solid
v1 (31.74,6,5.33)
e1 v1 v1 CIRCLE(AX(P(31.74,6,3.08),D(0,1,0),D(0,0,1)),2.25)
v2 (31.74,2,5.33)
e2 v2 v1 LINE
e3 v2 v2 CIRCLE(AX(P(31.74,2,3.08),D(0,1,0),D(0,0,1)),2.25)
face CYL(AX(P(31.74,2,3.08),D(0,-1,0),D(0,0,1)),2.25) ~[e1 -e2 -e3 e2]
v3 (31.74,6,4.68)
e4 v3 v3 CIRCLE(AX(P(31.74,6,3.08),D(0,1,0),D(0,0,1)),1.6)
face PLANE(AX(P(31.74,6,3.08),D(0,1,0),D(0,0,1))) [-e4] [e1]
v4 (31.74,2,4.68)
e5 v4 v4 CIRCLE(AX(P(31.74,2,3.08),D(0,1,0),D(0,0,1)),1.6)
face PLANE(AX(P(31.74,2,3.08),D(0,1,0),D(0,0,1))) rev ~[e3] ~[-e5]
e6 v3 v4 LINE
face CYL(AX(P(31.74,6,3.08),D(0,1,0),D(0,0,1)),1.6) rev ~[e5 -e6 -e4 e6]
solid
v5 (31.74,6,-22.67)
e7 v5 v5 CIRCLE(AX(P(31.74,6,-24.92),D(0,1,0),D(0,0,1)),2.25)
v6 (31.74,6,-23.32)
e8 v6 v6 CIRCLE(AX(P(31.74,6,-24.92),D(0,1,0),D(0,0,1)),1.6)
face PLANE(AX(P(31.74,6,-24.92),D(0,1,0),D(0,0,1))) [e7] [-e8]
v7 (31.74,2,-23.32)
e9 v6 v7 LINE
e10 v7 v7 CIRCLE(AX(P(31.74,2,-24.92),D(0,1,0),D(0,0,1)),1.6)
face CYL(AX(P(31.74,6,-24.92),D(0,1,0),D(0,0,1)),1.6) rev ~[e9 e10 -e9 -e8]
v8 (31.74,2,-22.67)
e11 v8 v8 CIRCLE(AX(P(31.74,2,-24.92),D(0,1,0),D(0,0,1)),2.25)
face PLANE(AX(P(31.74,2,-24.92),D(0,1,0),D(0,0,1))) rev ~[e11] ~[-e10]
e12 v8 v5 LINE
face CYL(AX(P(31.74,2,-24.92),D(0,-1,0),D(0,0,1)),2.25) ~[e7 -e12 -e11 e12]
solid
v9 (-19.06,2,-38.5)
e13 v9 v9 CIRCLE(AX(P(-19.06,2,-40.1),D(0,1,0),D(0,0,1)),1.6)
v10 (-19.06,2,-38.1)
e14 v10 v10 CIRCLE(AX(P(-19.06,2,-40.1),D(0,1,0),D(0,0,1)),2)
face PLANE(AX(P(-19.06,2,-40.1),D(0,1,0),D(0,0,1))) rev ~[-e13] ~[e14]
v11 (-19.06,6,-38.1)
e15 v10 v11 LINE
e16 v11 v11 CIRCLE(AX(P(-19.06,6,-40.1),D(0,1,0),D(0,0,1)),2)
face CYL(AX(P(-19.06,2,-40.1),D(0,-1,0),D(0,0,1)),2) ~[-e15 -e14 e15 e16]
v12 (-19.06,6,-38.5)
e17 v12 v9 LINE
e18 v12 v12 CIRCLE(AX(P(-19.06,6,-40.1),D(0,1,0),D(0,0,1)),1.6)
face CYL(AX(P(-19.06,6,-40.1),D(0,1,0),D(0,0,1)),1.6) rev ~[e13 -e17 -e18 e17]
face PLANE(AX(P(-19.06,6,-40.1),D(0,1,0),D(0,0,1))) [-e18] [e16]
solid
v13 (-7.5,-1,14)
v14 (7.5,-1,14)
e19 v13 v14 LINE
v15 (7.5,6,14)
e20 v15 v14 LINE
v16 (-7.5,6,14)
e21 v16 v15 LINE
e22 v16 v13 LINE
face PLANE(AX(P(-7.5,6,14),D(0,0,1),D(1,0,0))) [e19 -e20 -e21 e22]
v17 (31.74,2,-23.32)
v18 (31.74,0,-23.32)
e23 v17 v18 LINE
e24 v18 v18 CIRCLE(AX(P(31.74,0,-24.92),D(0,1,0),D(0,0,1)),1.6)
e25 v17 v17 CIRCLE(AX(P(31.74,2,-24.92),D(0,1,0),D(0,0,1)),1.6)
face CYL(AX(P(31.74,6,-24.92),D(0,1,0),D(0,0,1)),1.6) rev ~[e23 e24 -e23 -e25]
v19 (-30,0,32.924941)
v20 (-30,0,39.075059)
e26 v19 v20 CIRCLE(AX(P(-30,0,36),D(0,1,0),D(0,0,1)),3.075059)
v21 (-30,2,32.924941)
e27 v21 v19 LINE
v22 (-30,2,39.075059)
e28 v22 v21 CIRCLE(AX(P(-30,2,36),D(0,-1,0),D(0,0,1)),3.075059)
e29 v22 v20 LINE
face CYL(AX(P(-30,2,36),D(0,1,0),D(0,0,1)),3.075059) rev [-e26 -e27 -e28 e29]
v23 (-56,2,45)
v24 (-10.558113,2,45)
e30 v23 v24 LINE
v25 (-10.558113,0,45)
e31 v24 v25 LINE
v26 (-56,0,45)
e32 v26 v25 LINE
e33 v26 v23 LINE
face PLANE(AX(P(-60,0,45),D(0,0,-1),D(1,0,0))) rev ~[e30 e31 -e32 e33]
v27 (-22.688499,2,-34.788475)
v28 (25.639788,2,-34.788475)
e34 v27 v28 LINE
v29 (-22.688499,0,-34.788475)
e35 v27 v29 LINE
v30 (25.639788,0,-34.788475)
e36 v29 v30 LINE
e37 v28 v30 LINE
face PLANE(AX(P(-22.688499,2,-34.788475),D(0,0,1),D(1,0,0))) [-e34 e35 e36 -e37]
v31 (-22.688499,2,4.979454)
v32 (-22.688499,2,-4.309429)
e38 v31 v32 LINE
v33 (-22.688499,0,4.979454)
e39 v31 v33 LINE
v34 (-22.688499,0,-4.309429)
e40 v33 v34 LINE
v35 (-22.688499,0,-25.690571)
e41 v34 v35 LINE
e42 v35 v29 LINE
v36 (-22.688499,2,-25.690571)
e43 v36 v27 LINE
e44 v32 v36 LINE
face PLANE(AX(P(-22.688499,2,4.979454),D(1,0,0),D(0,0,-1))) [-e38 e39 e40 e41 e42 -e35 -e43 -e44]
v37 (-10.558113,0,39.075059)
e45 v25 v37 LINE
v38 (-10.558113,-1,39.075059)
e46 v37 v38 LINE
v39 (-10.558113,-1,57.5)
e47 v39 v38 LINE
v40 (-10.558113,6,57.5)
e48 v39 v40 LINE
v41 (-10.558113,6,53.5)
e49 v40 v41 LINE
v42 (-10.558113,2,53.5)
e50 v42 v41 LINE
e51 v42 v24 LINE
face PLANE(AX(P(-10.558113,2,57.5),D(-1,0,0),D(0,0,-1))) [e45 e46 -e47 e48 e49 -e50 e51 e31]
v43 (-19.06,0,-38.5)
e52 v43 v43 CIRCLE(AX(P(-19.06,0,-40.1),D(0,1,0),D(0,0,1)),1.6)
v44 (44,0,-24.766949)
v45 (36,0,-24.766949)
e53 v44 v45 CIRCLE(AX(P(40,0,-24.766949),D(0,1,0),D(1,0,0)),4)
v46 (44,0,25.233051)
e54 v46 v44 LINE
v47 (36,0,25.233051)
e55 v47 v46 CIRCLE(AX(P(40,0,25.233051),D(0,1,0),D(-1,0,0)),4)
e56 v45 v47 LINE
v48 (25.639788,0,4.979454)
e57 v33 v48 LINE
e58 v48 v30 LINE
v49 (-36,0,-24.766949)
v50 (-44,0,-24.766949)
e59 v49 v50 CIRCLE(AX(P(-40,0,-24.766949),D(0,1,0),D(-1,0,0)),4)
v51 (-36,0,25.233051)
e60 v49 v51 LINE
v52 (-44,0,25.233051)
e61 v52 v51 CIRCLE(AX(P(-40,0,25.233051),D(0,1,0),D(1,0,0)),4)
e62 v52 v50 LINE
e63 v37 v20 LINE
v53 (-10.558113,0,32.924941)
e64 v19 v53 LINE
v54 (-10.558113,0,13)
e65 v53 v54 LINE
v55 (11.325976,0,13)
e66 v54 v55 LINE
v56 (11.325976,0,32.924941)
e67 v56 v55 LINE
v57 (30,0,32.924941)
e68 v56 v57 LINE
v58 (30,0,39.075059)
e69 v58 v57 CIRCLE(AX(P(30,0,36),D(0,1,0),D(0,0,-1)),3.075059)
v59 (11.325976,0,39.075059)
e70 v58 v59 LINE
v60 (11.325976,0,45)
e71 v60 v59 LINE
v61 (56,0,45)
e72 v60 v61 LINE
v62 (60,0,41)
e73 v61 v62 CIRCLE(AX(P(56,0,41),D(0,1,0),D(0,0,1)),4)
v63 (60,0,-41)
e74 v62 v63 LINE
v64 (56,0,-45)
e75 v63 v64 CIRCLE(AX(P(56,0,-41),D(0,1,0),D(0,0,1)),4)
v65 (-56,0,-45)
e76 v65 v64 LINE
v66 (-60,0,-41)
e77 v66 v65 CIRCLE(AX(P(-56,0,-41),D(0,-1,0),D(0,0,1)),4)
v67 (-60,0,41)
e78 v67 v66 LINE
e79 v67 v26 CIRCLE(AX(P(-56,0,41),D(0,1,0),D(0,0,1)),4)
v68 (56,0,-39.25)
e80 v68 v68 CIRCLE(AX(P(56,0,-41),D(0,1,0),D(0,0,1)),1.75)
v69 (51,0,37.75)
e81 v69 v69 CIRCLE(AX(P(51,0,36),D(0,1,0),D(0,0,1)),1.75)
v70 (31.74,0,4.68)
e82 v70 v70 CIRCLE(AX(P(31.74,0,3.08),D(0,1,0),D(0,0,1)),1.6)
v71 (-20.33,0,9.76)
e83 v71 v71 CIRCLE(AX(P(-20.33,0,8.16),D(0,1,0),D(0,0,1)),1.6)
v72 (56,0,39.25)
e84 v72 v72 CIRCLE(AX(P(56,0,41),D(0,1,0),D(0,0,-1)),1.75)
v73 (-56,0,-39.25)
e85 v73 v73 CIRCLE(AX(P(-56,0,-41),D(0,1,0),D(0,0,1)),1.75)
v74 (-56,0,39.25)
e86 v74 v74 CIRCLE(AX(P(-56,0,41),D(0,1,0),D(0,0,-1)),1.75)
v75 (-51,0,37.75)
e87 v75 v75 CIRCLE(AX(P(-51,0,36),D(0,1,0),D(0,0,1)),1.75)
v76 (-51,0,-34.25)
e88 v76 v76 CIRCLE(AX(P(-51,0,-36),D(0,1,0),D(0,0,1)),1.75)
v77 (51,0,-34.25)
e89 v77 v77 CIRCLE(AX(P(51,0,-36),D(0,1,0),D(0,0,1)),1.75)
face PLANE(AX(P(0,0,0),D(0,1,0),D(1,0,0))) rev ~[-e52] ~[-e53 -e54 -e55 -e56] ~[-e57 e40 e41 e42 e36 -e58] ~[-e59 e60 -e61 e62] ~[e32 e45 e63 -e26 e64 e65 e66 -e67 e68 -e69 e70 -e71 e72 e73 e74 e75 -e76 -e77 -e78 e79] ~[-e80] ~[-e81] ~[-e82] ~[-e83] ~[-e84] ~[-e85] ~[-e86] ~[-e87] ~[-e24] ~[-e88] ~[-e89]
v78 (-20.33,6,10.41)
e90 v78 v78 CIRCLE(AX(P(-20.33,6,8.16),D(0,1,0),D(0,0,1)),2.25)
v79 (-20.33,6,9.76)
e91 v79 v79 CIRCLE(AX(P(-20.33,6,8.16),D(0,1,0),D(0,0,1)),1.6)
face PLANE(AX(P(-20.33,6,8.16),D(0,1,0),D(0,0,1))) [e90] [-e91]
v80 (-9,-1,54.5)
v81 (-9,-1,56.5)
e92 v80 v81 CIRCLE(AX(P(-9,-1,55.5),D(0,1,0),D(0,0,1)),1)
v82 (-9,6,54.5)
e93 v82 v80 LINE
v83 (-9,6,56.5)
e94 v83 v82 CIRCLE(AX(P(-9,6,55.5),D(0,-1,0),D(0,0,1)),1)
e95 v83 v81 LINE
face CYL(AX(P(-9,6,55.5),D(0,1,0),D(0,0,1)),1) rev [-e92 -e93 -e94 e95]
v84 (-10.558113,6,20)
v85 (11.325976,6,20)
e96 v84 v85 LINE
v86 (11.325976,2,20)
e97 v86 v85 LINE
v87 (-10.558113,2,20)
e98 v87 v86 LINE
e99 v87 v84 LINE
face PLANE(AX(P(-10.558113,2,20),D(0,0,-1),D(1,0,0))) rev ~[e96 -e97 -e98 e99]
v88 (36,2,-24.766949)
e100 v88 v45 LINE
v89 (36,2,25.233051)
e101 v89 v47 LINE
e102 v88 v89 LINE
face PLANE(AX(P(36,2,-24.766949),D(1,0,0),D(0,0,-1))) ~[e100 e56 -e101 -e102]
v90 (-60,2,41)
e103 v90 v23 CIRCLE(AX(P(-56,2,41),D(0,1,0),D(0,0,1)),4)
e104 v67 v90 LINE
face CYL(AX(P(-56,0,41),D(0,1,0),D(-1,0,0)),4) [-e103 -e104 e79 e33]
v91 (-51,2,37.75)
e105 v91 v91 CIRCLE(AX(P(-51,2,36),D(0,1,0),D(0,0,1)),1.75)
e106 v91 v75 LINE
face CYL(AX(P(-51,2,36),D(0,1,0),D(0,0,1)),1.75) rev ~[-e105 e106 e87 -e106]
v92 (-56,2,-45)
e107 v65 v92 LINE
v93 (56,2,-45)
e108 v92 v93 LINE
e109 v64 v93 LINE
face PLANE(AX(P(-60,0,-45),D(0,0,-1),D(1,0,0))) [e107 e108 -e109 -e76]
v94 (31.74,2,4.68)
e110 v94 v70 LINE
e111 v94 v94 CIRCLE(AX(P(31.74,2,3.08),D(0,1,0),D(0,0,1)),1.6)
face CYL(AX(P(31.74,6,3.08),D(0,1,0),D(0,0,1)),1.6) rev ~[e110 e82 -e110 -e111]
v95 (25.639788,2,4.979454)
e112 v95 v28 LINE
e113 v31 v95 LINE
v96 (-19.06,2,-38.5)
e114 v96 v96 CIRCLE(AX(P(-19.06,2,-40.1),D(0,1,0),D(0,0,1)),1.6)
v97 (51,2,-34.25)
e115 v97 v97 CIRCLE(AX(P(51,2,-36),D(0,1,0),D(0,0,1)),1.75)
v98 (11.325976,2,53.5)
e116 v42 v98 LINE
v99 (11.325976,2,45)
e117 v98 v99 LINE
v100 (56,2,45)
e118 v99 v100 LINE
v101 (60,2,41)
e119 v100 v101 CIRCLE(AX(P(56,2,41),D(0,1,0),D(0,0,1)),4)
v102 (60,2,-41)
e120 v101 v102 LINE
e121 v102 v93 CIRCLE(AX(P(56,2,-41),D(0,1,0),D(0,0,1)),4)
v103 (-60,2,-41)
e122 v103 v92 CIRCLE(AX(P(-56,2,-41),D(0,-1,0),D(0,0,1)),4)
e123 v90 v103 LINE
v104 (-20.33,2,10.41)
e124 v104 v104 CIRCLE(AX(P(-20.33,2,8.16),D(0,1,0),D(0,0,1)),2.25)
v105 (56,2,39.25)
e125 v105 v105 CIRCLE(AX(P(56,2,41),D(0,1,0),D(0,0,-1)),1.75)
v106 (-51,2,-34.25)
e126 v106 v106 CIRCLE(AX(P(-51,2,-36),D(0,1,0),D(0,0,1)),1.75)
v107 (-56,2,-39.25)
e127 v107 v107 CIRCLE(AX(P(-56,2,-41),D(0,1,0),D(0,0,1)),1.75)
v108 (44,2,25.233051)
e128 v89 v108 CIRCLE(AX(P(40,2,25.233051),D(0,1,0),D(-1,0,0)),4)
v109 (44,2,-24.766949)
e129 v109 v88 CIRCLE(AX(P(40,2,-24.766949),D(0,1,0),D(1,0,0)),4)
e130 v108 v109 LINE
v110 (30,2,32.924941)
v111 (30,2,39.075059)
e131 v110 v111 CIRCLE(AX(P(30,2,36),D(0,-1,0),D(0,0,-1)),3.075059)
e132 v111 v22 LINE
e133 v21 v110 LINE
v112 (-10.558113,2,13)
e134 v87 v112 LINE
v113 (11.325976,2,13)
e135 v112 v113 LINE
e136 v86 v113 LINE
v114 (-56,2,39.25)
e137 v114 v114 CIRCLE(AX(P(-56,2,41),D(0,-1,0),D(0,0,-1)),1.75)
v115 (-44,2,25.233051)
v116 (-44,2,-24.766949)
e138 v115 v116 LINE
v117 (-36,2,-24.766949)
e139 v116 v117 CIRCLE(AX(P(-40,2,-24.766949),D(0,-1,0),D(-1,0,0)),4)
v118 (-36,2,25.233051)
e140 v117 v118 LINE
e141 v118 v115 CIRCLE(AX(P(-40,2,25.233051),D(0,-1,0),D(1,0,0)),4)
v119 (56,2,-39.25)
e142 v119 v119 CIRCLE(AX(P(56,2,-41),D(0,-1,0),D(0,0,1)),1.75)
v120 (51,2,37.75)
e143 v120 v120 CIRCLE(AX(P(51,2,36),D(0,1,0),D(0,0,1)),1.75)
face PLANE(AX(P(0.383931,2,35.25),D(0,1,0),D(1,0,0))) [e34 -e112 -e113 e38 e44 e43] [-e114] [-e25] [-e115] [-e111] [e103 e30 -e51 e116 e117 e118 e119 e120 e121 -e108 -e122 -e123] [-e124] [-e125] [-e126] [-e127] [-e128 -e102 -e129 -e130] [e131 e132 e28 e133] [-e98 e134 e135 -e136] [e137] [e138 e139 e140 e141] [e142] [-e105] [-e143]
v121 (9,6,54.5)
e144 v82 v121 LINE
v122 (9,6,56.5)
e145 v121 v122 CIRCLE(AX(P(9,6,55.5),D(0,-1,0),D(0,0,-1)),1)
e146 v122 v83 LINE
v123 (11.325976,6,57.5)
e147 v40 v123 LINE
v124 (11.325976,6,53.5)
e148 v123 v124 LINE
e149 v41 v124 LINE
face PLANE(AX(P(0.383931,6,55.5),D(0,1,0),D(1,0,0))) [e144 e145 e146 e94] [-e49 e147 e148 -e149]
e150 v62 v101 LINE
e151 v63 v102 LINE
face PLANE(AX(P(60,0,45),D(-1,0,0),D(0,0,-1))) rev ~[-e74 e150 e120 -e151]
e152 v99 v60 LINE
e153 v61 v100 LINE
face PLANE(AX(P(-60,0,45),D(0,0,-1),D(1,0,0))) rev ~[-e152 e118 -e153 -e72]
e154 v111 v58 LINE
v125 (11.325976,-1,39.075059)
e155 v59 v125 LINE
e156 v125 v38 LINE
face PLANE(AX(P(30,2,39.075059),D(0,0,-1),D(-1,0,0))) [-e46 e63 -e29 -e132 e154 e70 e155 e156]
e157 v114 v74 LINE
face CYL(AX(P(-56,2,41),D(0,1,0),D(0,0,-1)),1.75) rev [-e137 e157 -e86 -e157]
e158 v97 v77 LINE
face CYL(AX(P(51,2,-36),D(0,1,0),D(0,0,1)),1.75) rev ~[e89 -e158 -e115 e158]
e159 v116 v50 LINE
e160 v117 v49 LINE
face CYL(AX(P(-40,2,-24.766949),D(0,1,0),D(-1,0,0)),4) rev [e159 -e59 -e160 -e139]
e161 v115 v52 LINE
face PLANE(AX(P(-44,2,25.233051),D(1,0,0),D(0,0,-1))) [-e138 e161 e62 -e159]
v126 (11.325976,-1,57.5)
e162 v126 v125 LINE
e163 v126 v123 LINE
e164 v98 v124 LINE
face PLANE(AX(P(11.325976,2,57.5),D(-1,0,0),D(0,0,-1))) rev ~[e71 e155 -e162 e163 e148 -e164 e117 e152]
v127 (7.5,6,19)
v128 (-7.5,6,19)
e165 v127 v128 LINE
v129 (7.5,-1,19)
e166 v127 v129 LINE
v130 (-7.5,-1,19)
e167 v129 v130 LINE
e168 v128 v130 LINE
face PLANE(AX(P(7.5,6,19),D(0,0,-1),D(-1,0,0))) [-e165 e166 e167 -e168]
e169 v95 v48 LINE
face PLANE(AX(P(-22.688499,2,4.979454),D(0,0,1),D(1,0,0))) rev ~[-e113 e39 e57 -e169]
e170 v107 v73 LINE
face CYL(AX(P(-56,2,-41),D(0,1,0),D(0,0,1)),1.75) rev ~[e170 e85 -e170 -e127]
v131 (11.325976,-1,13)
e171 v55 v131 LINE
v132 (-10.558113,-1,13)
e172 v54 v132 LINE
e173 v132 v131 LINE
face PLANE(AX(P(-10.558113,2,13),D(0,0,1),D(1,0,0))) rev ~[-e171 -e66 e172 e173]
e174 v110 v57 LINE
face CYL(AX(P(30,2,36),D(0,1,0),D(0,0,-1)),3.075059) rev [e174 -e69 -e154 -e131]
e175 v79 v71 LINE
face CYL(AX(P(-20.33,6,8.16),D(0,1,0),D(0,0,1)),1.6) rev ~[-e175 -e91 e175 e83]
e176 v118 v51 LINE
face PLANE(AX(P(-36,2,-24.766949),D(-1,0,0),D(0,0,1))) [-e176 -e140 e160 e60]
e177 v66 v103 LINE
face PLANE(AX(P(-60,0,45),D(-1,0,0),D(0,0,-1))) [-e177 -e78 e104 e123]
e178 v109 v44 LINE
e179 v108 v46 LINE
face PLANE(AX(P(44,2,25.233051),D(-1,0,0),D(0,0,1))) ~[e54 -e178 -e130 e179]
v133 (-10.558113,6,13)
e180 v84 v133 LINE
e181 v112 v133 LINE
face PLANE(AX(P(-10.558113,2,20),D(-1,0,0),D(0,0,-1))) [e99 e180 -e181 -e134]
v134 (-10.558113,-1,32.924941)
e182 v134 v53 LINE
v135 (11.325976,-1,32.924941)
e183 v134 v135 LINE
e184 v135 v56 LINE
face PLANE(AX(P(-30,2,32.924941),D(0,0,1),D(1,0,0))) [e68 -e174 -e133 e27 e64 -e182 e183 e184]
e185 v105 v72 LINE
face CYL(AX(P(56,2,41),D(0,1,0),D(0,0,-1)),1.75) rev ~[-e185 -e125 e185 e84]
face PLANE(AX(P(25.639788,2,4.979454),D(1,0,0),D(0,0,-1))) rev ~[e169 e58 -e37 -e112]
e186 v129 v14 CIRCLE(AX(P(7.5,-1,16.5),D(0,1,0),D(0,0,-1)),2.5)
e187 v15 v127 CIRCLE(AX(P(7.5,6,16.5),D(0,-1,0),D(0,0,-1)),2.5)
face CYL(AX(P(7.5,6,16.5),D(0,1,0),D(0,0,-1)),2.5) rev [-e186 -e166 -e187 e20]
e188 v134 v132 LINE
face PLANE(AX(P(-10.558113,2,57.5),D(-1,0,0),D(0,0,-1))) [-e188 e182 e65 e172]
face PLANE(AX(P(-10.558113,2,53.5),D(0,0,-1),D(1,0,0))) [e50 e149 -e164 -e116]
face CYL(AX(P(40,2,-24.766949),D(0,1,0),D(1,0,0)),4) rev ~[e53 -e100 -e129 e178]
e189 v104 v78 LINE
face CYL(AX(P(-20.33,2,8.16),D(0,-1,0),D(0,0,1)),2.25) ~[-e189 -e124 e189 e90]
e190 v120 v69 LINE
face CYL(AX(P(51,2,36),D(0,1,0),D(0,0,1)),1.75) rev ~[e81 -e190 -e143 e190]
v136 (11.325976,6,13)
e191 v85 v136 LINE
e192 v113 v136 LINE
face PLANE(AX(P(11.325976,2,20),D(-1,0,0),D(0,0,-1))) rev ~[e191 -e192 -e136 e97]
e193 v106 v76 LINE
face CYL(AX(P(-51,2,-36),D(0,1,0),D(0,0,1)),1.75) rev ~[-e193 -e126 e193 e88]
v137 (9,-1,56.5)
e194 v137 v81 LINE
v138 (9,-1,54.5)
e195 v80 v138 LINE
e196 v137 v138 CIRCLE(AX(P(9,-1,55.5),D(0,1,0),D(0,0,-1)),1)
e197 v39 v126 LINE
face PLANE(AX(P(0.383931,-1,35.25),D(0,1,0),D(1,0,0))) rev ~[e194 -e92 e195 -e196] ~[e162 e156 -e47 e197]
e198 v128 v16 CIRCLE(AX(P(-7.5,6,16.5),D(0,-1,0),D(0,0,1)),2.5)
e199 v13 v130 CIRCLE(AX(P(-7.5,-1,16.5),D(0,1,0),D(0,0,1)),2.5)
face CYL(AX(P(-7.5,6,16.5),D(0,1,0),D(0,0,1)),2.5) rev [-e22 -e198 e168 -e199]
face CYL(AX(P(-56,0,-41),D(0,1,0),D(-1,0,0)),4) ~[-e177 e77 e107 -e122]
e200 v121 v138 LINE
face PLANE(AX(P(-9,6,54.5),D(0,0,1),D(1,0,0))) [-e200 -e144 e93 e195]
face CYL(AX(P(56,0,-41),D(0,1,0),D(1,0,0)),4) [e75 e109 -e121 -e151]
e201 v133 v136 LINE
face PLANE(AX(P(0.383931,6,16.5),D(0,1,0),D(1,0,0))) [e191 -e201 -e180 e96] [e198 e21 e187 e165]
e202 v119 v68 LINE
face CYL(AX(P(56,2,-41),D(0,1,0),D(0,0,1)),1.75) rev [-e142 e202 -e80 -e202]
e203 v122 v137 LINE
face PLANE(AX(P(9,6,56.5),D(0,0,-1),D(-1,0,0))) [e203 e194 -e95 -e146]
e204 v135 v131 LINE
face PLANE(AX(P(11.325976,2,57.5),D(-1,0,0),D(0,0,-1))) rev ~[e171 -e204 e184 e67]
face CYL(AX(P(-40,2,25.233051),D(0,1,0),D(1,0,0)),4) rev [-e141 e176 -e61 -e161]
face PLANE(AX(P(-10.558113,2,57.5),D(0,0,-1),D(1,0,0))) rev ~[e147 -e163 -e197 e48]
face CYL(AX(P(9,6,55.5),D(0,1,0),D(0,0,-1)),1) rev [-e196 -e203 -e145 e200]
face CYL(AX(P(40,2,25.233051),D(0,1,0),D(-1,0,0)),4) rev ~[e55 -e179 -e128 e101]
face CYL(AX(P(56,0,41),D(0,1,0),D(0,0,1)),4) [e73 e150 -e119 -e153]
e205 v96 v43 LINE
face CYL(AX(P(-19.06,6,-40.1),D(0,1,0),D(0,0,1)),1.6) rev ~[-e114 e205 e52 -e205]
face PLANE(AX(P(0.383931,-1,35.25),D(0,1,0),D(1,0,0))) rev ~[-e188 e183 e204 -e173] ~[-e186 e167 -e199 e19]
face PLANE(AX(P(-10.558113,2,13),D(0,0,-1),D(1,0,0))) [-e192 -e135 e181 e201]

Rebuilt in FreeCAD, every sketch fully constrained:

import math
import FreeCAD as App
import Part
import Sketcher

V = App.Vector
Q = App.Units.Quantity


def edges_at(feature, points):
    """Names of the edges that pass closest to the given points."""
    edges = feature.Shape.Edges
    near = lambda p: min(range(len(edges)), key=lambda i: edges[i].distToShape(Part.Vertex(*p))[0])
    return sorted({f"Edge{near(p) + 1}" for p in points})

doc = App.newDocument("Part")
body = doc.addObject("PartDesign::Body", "Body")

# Sketch on XZ plane
sketch1 = doc.addObject("Sketcher::SketchObject", "Sketch")
body.addObject(sketch1)
sketch1.AttachmentSupport = (doc.XZ_Plane, [""])
sketch1.MapMode = "FlatFace"
sketch1.addGeometry(Part.LineSegment(V(-60, -45, 0), V(-60, 45, 0)), False)
sketch1.addGeometry(Part.LineSegment(V(-60, 45, 0), V(60, 45, 0)), False)
sketch1.addGeometry(Part.LineSegment(V(60, 45, 0), V(60, -45, 0)), False)
sketch1.addGeometry(Part.LineSegment(V(60, -45, 0), V(-60, -45, 0)), False)
sketch1.addConstraint(Sketcher.Constraint("Coincident", 0, 2, 1, 1))
sketch1.addConstraint(Sketcher.Constraint("Coincident", 1, 2, 2, 1))
sketch1.addConstraint(Sketcher.Constraint("Coincident", 2, 2, 3, 1))
sketch1.addConstraint(Sketcher.Constraint("Coincident", 3, 2, 0, 1))
sketch1.addConstraint(Sketcher.Constraint("Vertical", 0))
sketch1.addConstraint(Sketcher.Constraint("Horizontal", 1))
sketch1.addConstraint(Sketcher.Constraint("Vertical", 2))
sketch1.addConstraint(Sketcher.Constraint("Horizontal", 3))
sketch1.addConstraint(Sketcher.Constraint("Symmetric", 0, 2, 2, 2, -1, 1))
sketch1.addConstraint(Sketcher.Constraint("DistanceX", 1, 1, 1, 2, Q("120 mm")))
sketch1.addConstraint(Sketcher.Constraint("DistanceY", 0, 1, 0, 2, Q("90 mm")))
pad1 = doc.addObject("PartDesign::Pad", "Pad")
body.addObject(pad1)
pad1.Profile = sketch1
pad1.Length = 2
pad1.Reversed = True
doc.recompute()

fillet = doc.addObject("PartDesign::Fillet", "Fillet")
body.addObject(fillet)
fillet.Base = (pad1, edges_at(pad1, [
    (-60, 1, 45),
    (-60, 1, -45),
    (60, 1, -45),
    (60, 1, 45),
]))
fillet.Radius = 4
body2 = doc.addObject("PartDesign::Body", "Body001")

# Sketch on XZ plane
sketch2 = doc.addObject("Sketcher::SketchObject", "Sketch001")
body2.addObject(sketch2)
sketch2.AttachmentSupport = (doc.getObject("XZ_Plane001"), [""])
sketch2.MapMode = "FlatFace"
sketch2.AttachmentOffset = App.Placement(V(0, 0, -2), App.Rotation())
sketch2.addGeometry(Part.Circle(V(31.74, 3.08, 0), V(0, 0, 1), 2.25), False)
sketch2.addConstraint(Sketcher.Constraint("Diameter", 0, Q("4.5 mm")))
sketch2.addConstraint(Sketcher.Constraint("DistanceX", -1, 1, 0, 3, Q("31.74 mm")))
sketch2.addConstraint(Sketcher.Constraint("DistanceY", -1, 1, 0, 3, Q("3.08 mm")))
pad2 = doc.addObject("PartDesign::Pad", "Pad001")
body2.addObject(pad2)
pad2.Profile = sketch2
pad2.Length = 4
pad2.Reversed = True
body3 = doc.addObject("PartDesign::Body", "Body002")

# Sketch on XZ plane
sketch3 = doc.addObject("Sketcher::SketchObject", "Sketch002")
body3.addObject(sketch3)
sketch3.AttachmentSupport = (doc.getObject("XZ_Plane002"), [""])
sketch3.MapMode = "FlatFace"
sketch3.AttachmentOffset = App.Placement(V(0, 0, -2), App.Rotation())
sketch3.addGeometry(Part.Circle(V(-19.06, -40.1, 0), V(0, 0, 1), 2), False)
sketch3.addConstraint(Sketcher.Constraint("Diameter", 0, Q("4 mm")))
sketch3.addConstraint(Sketcher.Constraint("DistanceY", 0, 3, -1, 1, Q("40.1 mm")))
sketch3.addConstraint(Sketcher.Constraint("DistanceX", 0, 3, -1, 1, Q("19.06 mm")))
pad3 = doc.addObject("PartDesign::Pad", "Pad002")
body3.addObject(pad3)
pad3.Profile = sketch3
pad3.Length = 4
pad3.Reversed = True
body4 = doc.addObject("PartDesign::Body", "Body003")

# Sketch on XZ plane
sketch4 = doc.addObject("Sketcher::SketchObject", "Sketch003")
body4.addObject(sketch4)
sketch4.AttachmentSupport = (doc.getObject("XZ_Plane003"), [""])
sketch4.MapMode = "FlatFace"
sketch4.AttachmentOffset = App.Placement(V(0, 0, -2), App.Rotation())
sketch4.addGeometry(Part.Circle(V(31.74, -24.92, 0), V(0, 0, 1), 2.25), False)
sketch4.addConstraint(Sketcher.Constraint("Diameter", 0, Q("4.5 mm")))
sketch4.addConstraint(Sketcher.Constraint("DistanceX", -1, 1, 0, 3, Q("31.74 mm")))
sketch4.addConstraint(Sketcher.Constraint("DistanceY", 0, 3, -1, 1, Q("24.92 mm")))
pad4 = doc.addObject("PartDesign::Pad", "Pad003")
body4.addObject(pad4)
pad4.Profile = sketch4
pad4.Length = 4
pad4.Reversed = True
body5 = doc.addObject("PartDesign::Body", "Body004")
body5.AllowCompound = True

# Sketch on XZ plane
sketch5 = doc.addObject("Sketcher::SketchObject", "Sketch004")
body5.addObject(sketch5)
sketch5.AttachmentSupport = (doc.getObject("XZ_Plane004"), [""])
sketch5.MapMode = "FlatFace"
sketch5.AttachmentOffset = App.Placement(V(0, 0, -6), App.Rotation())
sketch5.addGeometry(Part.Circle(V(-19.06, -40.1, 0), V(0, 0, 1), 1.6), False)
sketch5.addGeometry(Part.Circle(V(31.74, -24.92, 0), V(0, 0, 1), 1.6), False)
sketch5.addGeometry(Part.Circle(V(31.74, 3.08, 0), V(0, 0, 1), 1.6), False)
sketch5.addConstraint(Sketcher.Constraint("Equal", 0, 1))
sketch5.addConstraint(Sketcher.Constraint("Equal", 1, 2))
sketch5.addConstraint(Sketcher.Constraint("Vertical", 1, 3, 2, 3))
sketch5.addConstraint(Sketcher.Constraint("Diameter", 0, Q("3.2 mm")))
sketch5.addConstraint(Sketcher.Constraint("DistanceY", 1, 3, 2, 3, Q("28 mm")))
sketch5.addConstraint(Sketcher.Constraint("DistanceY", 0, 3, -1, 1, Q("40.1 mm")))
sketch5.addConstraint(Sketcher.Constraint("DistanceX", 0, 3, 1, 3, Q("50.8 mm")))
sketch5.addConstraint(Sketcher.Constraint("DistanceX", 0, 3, -1, 1, Q("19.06 mm")))
sketch5.addConstraint(Sketcher.Constraint("DistanceY", 1, 3, -1, 1, Q("24.92 mm")))
pad5 = doc.addObject("PartDesign::Pad", "Pad004")
body5.addObject(pad5)
pad5.Profile = sketch5
pad5.Length = 10
doc.recompute()

body6 = doc.addObject("PartDesign::Body", "Body005")
body6.BaseFeature = body5
boolean = doc.addObject("PartDesign::Boolean", "Boolean")
body.addObject(boolean)
boolean.Type = "Cut"
boolean.addObjects([body6])
doc.recompute()

# Sketch on XZ plane
sketch6 = doc.addObject("Sketcher::SketchObject", "Sketch005")
body.addObject(sketch6)
sketch6.AttachmentSupport = (doc.XZ_Plane, [""])
sketch6.MapMode = "FlatFace"
sketch6.AttachmentOffset = App.Placement(V(0, 0, -2), App.Rotation())
sketch6.addGeometry(Part.LineSegment(V(-22.688499, -25.690571, 0), V(-22.688499, -4.309429, 0)), False)
sketch6.addGeometry(Part.LineSegment(V(-22.688499, -4.309429, 0), V(20.688499, -4.309429, 0)), False)
sketch6.addGeometry(Part.LineSegment(V(20.688499, -4.309429, 0), V(20.688499, -25.690571, 0)), False)
sketch6.addGeometry(Part.LineSegment(V(20.688499, -25.690571, 0), V(-22.688499, -25.690571, 0)), False)
sketch6.addConstraint(Sketcher.Constraint("Coincident", 0, 2, 1, 1))
sketch6.addConstraint(Sketcher.Constraint("Coincident", 1, 2, 2, 1))
sketch6.addConstraint(Sketcher.Constraint("Coincident", 2, 2, 3, 1))
sketch6.addConstraint(Sketcher.Constraint("Coincident", 3, 2, 0, 1))
sketch6.addConstraint(Sketcher.Constraint("Vertical", 0))
sketch6.addConstraint(Sketcher.Constraint("Horizontal", 1))
sketch6.addConstraint(Sketcher.Constraint("Vertical", 2))
sketch6.addConstraint(Sketcher.Constraint("Horizontal", 3))
sketch6.addConstraint(Sketcher.Constraint("DistanceX", 0, 2, -1, 1, Q("22.688499 mm")))
sketch6.addConstraint(Sketcher.Constraint("DistanceX", -1, 1, 1, 2, Q("20.688499 mm")))
sketch6.addConstraint(Sketcher.Constraint("DistanceY", 0, 1, 0, 2, Q("21.381142 mm")))
sketch6.addConstraint(Sketcher.Constraint("DistanceY", 0, 2, -1, 1, Q("4.309429 mm")))
pocket1 = doc.addObject("PartDesign::Pocket", "Pocket")
body.addObject(pocket1)
pocket1.Profile = sketch6
pocket1.Length = 10
pocket1.Reversed = True

# Sketch on XZ plane
sketch7 = doc.addObject("Sketcher::SketchObject", "Sketch006")
body.addObject(sketch7)
sketch7.AttachmentSupport = (doc.XZ_Plane, [""])
sketch7.MapMode = "FlatFace"
sketch7.AttachmentOffset = App.Placement(V(0, 0, -2), App.Rotation())
sketch7.addGeometry(Part.Circle(V(-20.33, 8.16, 0), V(0, 0, 1), 2.25), False)
sketch7.addConstraint(Sketcher.Constraint("Diameter", 0, Q("4.5 mm")))
sketch7.addConstraint(Sketcher.Constraint("DistanceX", 0, 3, -1, 1, Q("20.33 mm")))
sketch7.addConstraint(Sketcher.Constraint("DistanceY", -1, 1, 0, 3, Q("8.16 mm")))
pad6 = doc.addObject("PartDesign::Pad", "Pad005")
body.addObject(pad6)
pad6.Profile = sketch7
pad6.Length = 4
pad6.Reversed = True

# Sketch on XZ plane
sketch8 = doc.addObject("Sketcher::SketchObject", "Sketch007")
body.addObject(sketch8)
sketch8.AttachmentSupport = (doc.XZ_Plane, [""])
sketch8.MapMode = "FlatFace"
sketch8.AttachmentOffset = App.Placement(V(0, 0, -6), App.Rotation())
sketch8.addGeometry(Part.Circle(V(-20.33, 8.16, 0), V(0, 0, 1), 1.6), False)
sketch8.addConstraint(Sketcher.Constraint("Diameter", 0, Q("3.2 mm")))
sketch8.addConstraint(Sketcher.Constraint("DistanceX", 0, 3, -1, 1, Q("20.33 mm")))
sketch8.addConstraint(Sketcher.Constraint("DistanceY", -1, 1, 0, 3, Q("8.16 mm")))
pocket2 = doc.addObject("PartDesign::Pocket", "Pocket001")
body.addObject(pocket2)
pocket2.Profile = sketch8
pocket2.Length = 8
pocket2.Reversed = True

# Sketch on XZ plane
sketch9 = doc.addObject("Sketcher::SketchObject", "Sketch008")
body.addObject(sketch9)
sketch9.AttachmentSupport = (doc.XZ_Plane, [""])
sketch9.MapMode = "FlatFace"
sketch9.AttachmentOffset = App.Placement(V(0, 0, -2), App.Rotation())
sketch9.addGeometry(Part.LineSegment(V(-10.558113, 13, 0), V(-10.558113, 20, 0)), False)
sketch9.addGeometry(Part.LineSegment(V(-10.558113, 20, 0), V(11.325976, 20, 0)), False)
sketch9.addGeometry(Part.LineSegment(V(11.325976, 20, 0), V(11.325976, 13, 0)), False)
sketch9.addGeometry(Part.LineSegment(V(11.325976, 13, 0), V(-10.558113, 13, 0)), False)
sketch9.addConstraint(Sketcher.Constraint("Coincident", 0, 2, 1, 1))
sketch9.addConstraint(Sketcher.Constraint("Coincident", 1, 2, 2, 1))
sketch9.addConstraint(Sketcher.Constraint("Coincident", 2, 2, 3, 1))
sketch9.addConstraint(Sketcher.Constraint("Coincident", 3, 2, 0, 1))
sketch9.addConstraint(Sketcher.Constraint("Vertical", 0))
sketch9.addConstraint(Sketcher.Constraint("Horizontal", 1))
sketch9.addConstraint(Sketcher.Constraint("Vertical", 2))
sketch9.addConstraint(Sketcher.Constraint("Horizontal", 3))
sketch9.addConstraint(Sketcher.Constraint("DistanceY", 0, 1, 0, 2, Q("7 mm")))
sketch9.addConstraint(Sketcher.Constraint("DistanceY", -1, 1, 0, 2, Q("20 mm")))
sketch9.addConstraint(Sketcher.Constraint("DistanceX", 1, 1, 1, 2, Q("21.884088 mm")))
sketch9.addConstraint(Sketcher.Constraint("DistanceX", 0, 2, -1, 1, Q("10.558113 mm")))
pad7 = doc.addObject("PartDesign::Pad", "Pad006")
body.addObject(pad7)
pad7.Profile = sketch9
pad7.Length = 4
pad7.Reversed = True

# Sketch on XZ plane
sketch10 = doc.addObject("Sketcher::SketchObject", "Sketch009")
body.addObject(sketch10)
sketch10.AttachmentSupport = (doc.XZ_Plane, [""])
sketch10.MapMode = "FlatFace"
sketch10.AttachmentOffset = App.Placement(V(0, 0, -2), App.Rotation())
sketch10.addGeometry(Part.LineSegment(V(-10.558113, 13, 0), V(-10.558113, 57.5, 0)), False)
sketch10.addGeometry(Part.LineSegment(V(-10.558113, 57.5, 0), V(11.325976, 57.5, 0)), False)
sketch10.addGeometry(Part.LineSegment(V(11.325976, 57.5, 0), V(11.325976, 13, 0)), False)
sketch10.addGeometry(Part.LineSegment(V(11.325976, 13, 0), V(-10.558113, 13, 0)), False)
sketch10.addConstraint(Sketcher.Constraint("Coincident", 0, 2, 1, 1))
sketch10.addConstraint(Sketcher.Constraint("Coincident", 1, 2, 2, 1))
sketch10.addConstraint(Sketcher.Constraint("Coincident", 2, 2, 3, 1))
sketch10.addConstraint(Sketcher.Constraint("Coincident", 3, 2, 0, 1))
sketch10.addConstraint(Sketcher.Constraint("Vertical", 0))
sketch10.addConstraint(Sketcher.Constraint("Horizontal", 1))
sketch10.addConstraint(Sketcher.Constraint("Vertical", 2))
sketch10.addConstraint(Sketcher.Constraint("Horizontal", 3))
sketch10.addConstraint(Sketcher.Constraint("DistanceY", 0, 1, 0, 2, Q("44.5 mm")))
sketch10.addConstraint(Sketcher.Constraint("DistanceY", -1, 1, 2, 2, Q("13 mm")))
sketch10.addConstraint(Sketcher.Constraint("DistanceX", 1, 1, 1, 2, Q("21.884088 mm")))
sketch10.addConstraint(Sketcher.Constraint("DistanceX", 0, 2, -1, 1, Q("10.558113 mm")))
pad8 = doc.addObject("PartDesign::Pad", "Pad007")
body.addObject(pad8)
pad8.Profile = sketch10
pad8.Length = 3

# Sketch on XZ plane
sketch11 = doc.addObject("Sketcher::SketchObject", "Sketch010")
body.addObject(sketch11)
sketch11.AttachmentSupport = (doc.XZ_Plane, [""])
sketch11.MapMode = "FlatFace"
sketch11.AttachmentOffset = App.Placement(V(0, 0, -2), App.Rotation())
sketch11.addGeometry(Part.LineSegment(V(-10.558113, 53.5, 0), V(-10.558113, 57.5, 0)), False)
sketch11.addGeometry(Part.LineSegment(V(-10.558113, 57.5, 0), V(11.325976, 57.5, 0)), False)
sketch11.addGeometry(Part.LineSegment(V(11.325976, 57.5, 0), V(11.325976, 53.5, 0)), False)
sketch11.addGeometry(Part.LineSegment(V(11.325976, 53.5, 0), V(-10.558113, 53.5, 0)), False)
sketch11.addConstraint(Sketcher.Constraint("Coincident", 0, 2, 1, 1))
sketch11.addConstraint(Sketcher.Constraint("Coincident", 1, 2, 2, 1))
sketch11.addConstraint(Sketcher.Constraint("Coincident", 2, 2, 3, 1))
sketch11.addConstraint(Sketcher.Constraint("Coincident", 3, 2, 0, 1))
sketch11.addConstraint(Sketcher.Constraint("Vertical", 0))
sketch11.addConstraint(Sketcher.Constraint("Horizontal", 1))
sketch11.addConstraint(Sketcher.Constraint("Vertical", 2))
sketch11.addConstraint(Sketcher.Constraint("Horizontal", 3))
sketch11.addConstraint(Sketcher.Constraint("DistanceY", 0, 1, 0, 2, Q("4 mm")))
sketch11.addConstraint(Sketcher.Constraint("DistanceY", -1, 1, 0, 2, Q("57.5 mm")))
sketch11.addConstraint(Sketcher.Constraint("DistanceX", 1, 1, 1, 2, Q("21.884088 mm")))
sketch11.addConstraint(Sketcher.Constraint("DistanceX", 0, 2, -1, 1, Q("10.558113 mm")))
pad9 = doc.addObject("PartDesign::Pad", "Pad008")
body.addObject(pad9)
pad9.Profile = sketch11
pad9.Length = 4
pad9.Reversed = True

# Sketch on XZ plane
sketch12 = doc.addObject("Sketcher::SketchObject", "Sketch011")
body.addObject(sketch12)
sketch12.AttachmentSupport = (doc.XZ_Plane, [""])
sketch12.MapMode = "FlatFace"
sketch12.AttachmentOffset = App.Placement(V(0, 0, -6), App.Rotation())
sketch12.addGeometry(Part.LineSegment(V(7.5, 14, 0), V(-7.5, 14, 0)), False)
sketch12.addGeometry(Part.ArcOfCircle(Part.Circle(V(-7.5, 16.5, 0), V(0, 0, 1), 2.5), math.radians(90), math.radians(270)), False)
sketch12.addGeometry(Part.LineSegment(V(-7.5, 19, 0), V(7.5, 19, 0)), False)
sketch12.addGeometry(Part.ArcOfCircle(Part.Circle(V(7.5, 16.5, 0), V(0, 0, 1), 2.5), math.radians(-90), math.radians(90)), False)
sketch12.addConstraint(Sketcher.Constraint("Tangent", 0, 2, 1, 2))
sketch12.addConstraint(Sketcher.Constraint("Tangent", 1, 1, 2, 1))
sketch12.addConstraint(Sketcher.Constraint("Tangent", 2, 2, 3, 2))
sketch12.addConstraint(Sketcher.Constraint("Tangent", 3, 1, 0, 1))
sketch12.addConstraint(Sketcher.Constraint("Horizontal", 0))
sketch12.addConstraint(Sketcher.Constraint("Horizontal", 2))
sketch12.addConstraint(Sketcher.Constraint("Radius", 1, Q("2.5 mm")))
sketch12.addConstraint(Sketcher.Constraint("DistanceX", 0, 2, 0, 1, Q("15 mm")))
sketch12.addConstraint(Sketcher.Constraint("DistanceY", -1, 1, 0, 2, Q("14 mm")))
sketch12.addConstraint(Sketcher.Constraint("DistanceX", 1, 3, -1, 1, Q("7.5 mm")))
pocket3 = doc.addObject("PartDesign::Pocket", "Pocket002")
body.addObject(pocket3)
pocket3.Profile = sketch12
pocket3.Length = 11
pocket3.Reversed = True

# Sketch on XZ plane
sketch13 = doc.addObject("Sketcher::SketchObject", "Sketch012")
body.addObject(sketch13)
sketch13.AttachmentSupport = (doc.XZ_Plane, [""])
sketch13.MapMode = "FlatFace"
sketch13.AttachmentOffset = App.Placement(V(0, 0, -6), App.Rotation())
sketch13.addGeometry(Part.LineSegment(V(9, 54.5, 0), V(-9, 54.5, 0)), False)
sketch13.addGeometry(Part.ArcOfCircle(Part.Circle(V(-9, 55.5, 0), V(0, 0, 1), 1), math.radians(90), math.radians(270)), False)
sketch13.addGeometry(Part.LineSegment(V(-9, 56.5, 0), V(9, 56.5, 0)), False)
sketch13.addGeometry(Part.ArcOfCircle(Part.Circle(V(9, 55.5, 0), V(0, 0, 1), 1), math.radians(-90), math.radians(90)), False)
sketch13.addConstraint(Sketcher.Constraint("Tangent", 0, 2, 1, 2))
sketch13.addConstraint(Sketcher.Constraint("Tangent", 1, 1, 2, 1))
sketch13.addConstraint(Sketcher.Constraint("Tangent", 2, 2, 3, 2))
sketch13.addConstraint(Sketcher.Constraint("Tangent", 3, 1, 0, 1))
sketch13.addConstraint(Sketcher.Constraint("Horizontal", 0))
sketch13.addConstraint(Sketcher.Constraint("Horizontal", 2))
sketch13.addConstraint(Sketcher.Constraint("Radius", 1, Q("1 mm")))
sketch13.addConstraint(Sketcher.Constraint("DistanceX", 0, 2, 0, 1, Q("18 mm")))
sketch13.addConstraint(Sketcher.Constraint("DistanceX", 1, 3, -1, 1, Q("9 mm")))
sketch13.addConstraint(Sketcher.Constraint("DistanceY", -1, 1, 1, 3, Q("55.5 mm")))
pocket4 = doc.addObject("PartDesign::Pocket", "Pocket003")
body.addObject(pocket4)
pocket4.Profile = sketch13
pocket4.Length = 11
pocket4.Reversed = True

# Sketch on XZ plane
sketch14 = doc.addObject("Sketcher::SketchObject", "Sketch013")
body.addObject(sketch14)
sketch14.AttachmentSupport = (doc.XZ_Plane, [""])
sketch14.MapMode = "FlatFace"
sketch14.AttachmentOffset = App.Placement(V(0, 0, -2), App.Rotation())
sketch14.addGeometry(Part.Circle(V(-51, -36, 0), V(0, 0, 1), 1.75), False)
sketch14.addGeometry(Part.Circle(V(51, -36, 0), V(0, 0, 1), 1.75), False)
sketch14.addGeometry(Part.Circle(V(51, 36, 0), V(0, 0, 1), 1.75), False)
sketch14.addGeometry(Part.Circle(V(-51, 36, 0), V(0, 0, 1), 1.75), False)
sketch14.addConstraint(Sketcher.Constraint("Equal", 0, 1))
sketch14.addConstraint(Sketcher.Constraint("Equal", 1, 2))
sketch14.addConstraint(Sketcher.Constraint("Equal", 2, 3))
sketch14.addConstraint(Sketcher.Constraint("Symmetric", 0, 3, 2, 3, -1, 1))
sketch14.addConstraint(Sketcher.Constraint("Symmetric", 1, 3, 3, 3, -1, 1))
sketch14.addConstraint(Sketcher.Constraint("Symmetric", 0, 3, 1, 3, -2))
sketch14.addConstraint(Sketcher.Constraint("Diameter", 0, Q("3.5 mm")))
sketch14.addConstraint(Sketcher.Constraint("DistanceX", 0, 3, -1, 1, Q("51 mm")))
sketch14.addConstraint(Sketcher.Constraint("DistanceY", 0, 3, -1, 1, Q("36 mm")))
pocket5 = doc.addObject("PartDesign::Pocket", "Pocket004")
body.addObject(pocket5)
pocket5.Profile = sketch14
pocket5.Length = 3
pocket5.Reversed = True

# Sketch on XZ plane
sketch15 = doc.addObject("Sketcher::SketchObject", "Sketch014")
body.addObject(sketch15)
sketch15.AttachmentSupport = (doc.XZ_Plane, [""])
sketch15.MapMode = "FlatFace"
sketch15.AttachmentOffset = App.Placement(V(0, 0, -2), App.Rotation())
sketch15.addGeometry(Part.Circle(V(-56, -41, 0), V(0, 0, 1), 1.75), False)
sketch15.addConstraint(Sketcher.Constraint("Diameter", 0, Q("3.5 mm")))
sketch15.addConstraint(Sketcher.Constraint("DistanceX", 0, 3, -1, 1, Q("56 mm")))
sketch15.addConstraint(Sketcher.Constraint("DistanceY", 0, 3, -1, 1, Q("41 mm")))
pocket6 = doc.addObject("PartDesign::Pocket", "Pocket005")
body.addObject(pocket6)
pocket6.Profile = sketch15
pocket6.Length = 10
pocket6.Reversed = True
doc.recompute()

mirrored = doc.addObject("PartDesign::Mirrored", "Mirrored")
body.addObject(mirrored)
mirrored.Originals = [pocket6]
mirrored.MirrorPlane = (doc.YZ_Plane, [""])
body.Tip = mirrored
doc.recompute()

mirrored2 = doc.addObject("PartDesign::Mirrored", "Mirrored001")
body.addObject(mirrored2)
mirrored2.Originals = [pocket6]
mirrored2.MirrorPlane = (doc.XY_Plane, [""])
body.Tip = mirrored2

# Sketch on XZ plane
sketch16 = doc.addObject("Sketcher::SketchObject", "Sketch015")
body.addObject(sketch16)
sketch16.AttachmentSupport = (doc.XZ_Plane, [""])
sketch16.MapMode = "FlatFace"
sketch16.AttachmentOffset = App.Placement(V(0, 0, -2), App.Rotation())
sketch16.addGeometry(Part.Circle(V(56, 41, 0), V(0, 0, 1), 1.75), False)
sketch16.addConstraint(Sketcher.Constraint("Diameter", 0, Q("3.5 mm")))
sketch16.addConstraint(Sketcher.Constraint("DistanceX", -1, 1, 0, 3, Q("56 mm")))
sketch16.addConstraint(Sketcher.Constraint("DistanceY", -1, 1, 0, 3, Q("41 mm")))
pocket7 = doc.addObject("PartDesign::Pocket", "Pocket006")
body.addObject(pocket7)
pocket7.Profile = sketch16
pocket7.Length = 10
pocket7.Reversed = True

# Sketch on XZ plane
sketch17 = doc.addObject("Sketcher::SketchObject", "Sketch016")
body.addObject(sketch17)
sketch17.AttachmentSupport = (doc.XZ_Plane, [""])
sketch17.MapMode = "FlatFace"
sketch17.AttachmentOffset = App.Placement(V(0, 0, -2), App.Rotation())
sketch17.addGeometry(Part.LineSegment(V(-44, -24.766949, 0), V(-44, 25.233051, 0)), False)
sketch17.addGeometry(Part.ArcOfCircle(Part.Circle(V(-40, 25.233051, 0), V(0, 0, 1), 4), math.radians(0), math.radians(180)), False)
sketch17.addGeometry(Part.LineSegment(V(-36, 25.233051, 0), V(-36, -24.766949, 0)), False)
sketch17.addGeometry(Part.ArcOfCircle(Part.Circle(V(-40, -24.766949, 0), V(0, 0, 1), 4), math.radians(180), math.radians(360)), False)
sketch17.addConstraint(Sketcher.Constraint("Tangent", 0, 2, 1, 2))
sketch17.addConstraint(Sketcher.Constraint("Tangent", 1, 1, 2, 1))
sketch17.addConstraint(Sketcher.Constraint("Tangent", 2, 2, 3, 2))
sketch17.addConstraint(Sketcher.Constraint("Tangent", 3, 1, 0, 1))
sketch17.addConstraint(Sketcher.Constraint("Vertical", 0))
sketch17.addConstraint(Sketcher.Constraint("Vertical", 2))
sketch17.addConstraint(Sketcher.Constraint("Radius", 1, Q("4 mm")))
sketch17.addConstraint(Sketcher.Constraint("DistanceY", 0, 1, 0, 2, Q("50 mm")))
sketch17.addConstraint(Sketcher.Constraint("DistanceX", 1, 3, -1, 1, Q("40 mm")))
sketch17.addConstraint(Sketcher.Constraint("DistanceY", -1, 1, 1, 3, Q("25.233051 mm")))
pocket8 = doc.addObject("PartDesign::Pocket", "Pocket007")
body.addObject(pocket8)
pocket8.Profile = sketch17
pocket8.Length = 10
pocket8.Reversed = True
doc.recompute()

mirrored3 = doc.addObject("PartDesign::Mirrored", "Mirrored002")
body.addObject(mirrored3)
mirrored3.Originals = [pocket8]
mirrored3.MirrorPlane = (doc.YZ_Plane, [""])
body.Tip = mirrored3

# Sketch on XZ plane
sketch18 = doc.addObject("Sketcher::SketchObject", "Sketch017")
body.addObject(sketch18)
sketch18.AttachmentSupport = (doc.XZ_Plane, [""])
sketch18.MapMode = "FlatFace"
sketch18.AttachmentOffset = App.Placement(V(0, 0, -2), App.Rotation())
sketch18.addGeometry(Part.LineSegment(V(30, 32.924941, 0), V(-30, 32.924941, 0)), False)
sketch18.addGeometry(Part.ArcOfCircle(Part.Circle(V(-30, 36, 0), V(0, 0, 1), 3.075059), math.radians(90), math.radians(270)), False)
sketch18.addGeometry(Part.LineSegment(V(-30, 39.075059, 0), V(30, 39.075059, 0)), False)
sketch18.addGeometry(Part.ArcOfCircle(Part.Circle(V(30, 36, 0), V(0, 0, 1), 3.075059), math.radians(-90), math.radians(90)), False)
sketch18.addConstraint(Sketcher.Constraint("Tangent", 0, 2, 1, 2))
sketch18.addConstraint(Sketcher.Constraint("Tangent", 1, 1, 2, 1))
sketch18.addConstraint(Sketcher.Constraint("Tangent", 2, 2, 3, 2))
sketch18.addConstraint(Sketcher.Constraint("Tangent", 3, 1, 0, 1))
sketch18.addConstraint(Sketcher.Constraint("Horizontal", 0))
sketch18.addConstraint(Sketcher.Constraint("Horizontal", 2))
sketch18.addConstraint(Sketcher.Constraint("DistanceX", 0, 2, 0, 1, Q("60 mm")))
sketch18.addConstraint(Sketcher.Constraint("DistanceX", 1, 3, -1, 1, Q("30 mm")))
sketch18.addConstraint(Sketcher.Constraint("DistanceY", -1, 1, 1, 3, Q("36 mm")))
sketch18.addConstraint(Sketcher.Constraint("Radius", 1, Q("3.075059 mm")))
pocket9 = doc.addObject("PartDesign::Pocket", "Pocket008")
body.addObject(pocket9)
pocket9.Profile = sketch18
pocket9.Length = 10
pocket9.Reversed = True

# Sketch on XZ plane
sketch19 = doc.addObject("Sketcher::SketchObject", "Sketch018")
body.addObject(sketch19)
sketch19.AttachmentSupport = (doc.XZ_Plane, [""])
sketch19.MapMode = "FlatFace"
sketch19.AttachmentOffset = App.Placement(V(0, 0, -2), App.Rotation())
sketch19.addGeometry(Part.LineSegment(V(-22.688499, -34.788475, 0), V(-22.688499, 4.979454, 0)), False)
sketch19.addGeometry(Part.LineSegment(V(-22.688499, 4.979454, 0), V(25.639788, 4.979454, 0)), False)
sketch19.addGeometry(Part.LineSegment(V(25.639788, 4.979454, 0), V(25.639788, -34.788475, 0)), False)
sketch19.addGeometry(Part.LineSegment(V(25.639788, -34.788475, 0), V(-22.688499, -34.788475, 0)), False)
sketch19.addConstraint(Sketcher.Constraint("Coincident", 0, 2, 1, 1))
sketch19.addConstraint(Sketcher.Constraint("Coincident", 1, 2, 2, 1))
sketch19.addConstraint(Sketcher.Constraint("Coincident", 2, 2, 3, 1))
sketch19.addConstraint(Sketcher.Constraint("Coincident", 3, 2, 0, 1))
sketch19.addConstraint(Sketcher.Constraint("Vertical", 0))
sketch19.addConstraint(Sketcher.Constraint("Horizontal", 1))
sketch19.addConstraint(Sketcher.Constraint("Vertical", 2))
sketch19.addConstraint(Sketcher.Constraint("Horizontal", 3))
sketch19.addConstraint(Sketcher.Constraint("DistanceY", 0, 1, 0, 2, Q("39.767929 mm")))
sketch19.addConstraint(Sketcher.Constraint("DistanceX", 0, 2, -1, 1, Q("22.688499 mm")))
sketch19.addConstraint(Sketcher.Constraint("DistanceX", 1, 1, 1, 2, Q("48.328287 mm")))
sketch19.addConstraint(Sketcher.Constraint("DistanceY", -1, 1, 0, 2, Q("4.979454 mm")))
pocket10 = doc.addObject("PartDesign::Pocket", "Pocket009")
body.addObject(pocket10)
pocket10.Profile = sketch19
pocket10.Length = 10
pocket10.Reversed = True
doc.recompute()

body7 = doc.addObject("PartDesign::Body", "Body006")
body7.BaseFeature = body5
boolean2 = doc.addObject("PartDesign::Boolean", "Boolean001")
body2.addObject(boolean2)
boolean2.Type = "Cut"
boolean2.addObjects([body7])
doc.recompute()

body8 = doc.addObject("PartDesign::Body", "Body007")
body8.BaseFeature = body5
boolean3 = doc.addObject("PartDesign::Boolean", "Boolean002")
body3.addObject(boolean3)
boolean3.Type = "Cut"
boolean3.addObjects([body8])
doc.recompute()

boolean4 = doc.addObject("PartDesign::Boolean", "Boolean003")
body4.addObject(boolean4)
boolean4.Type = "Cut"
boolean4.addObjects([body5])

doc.recompute()
